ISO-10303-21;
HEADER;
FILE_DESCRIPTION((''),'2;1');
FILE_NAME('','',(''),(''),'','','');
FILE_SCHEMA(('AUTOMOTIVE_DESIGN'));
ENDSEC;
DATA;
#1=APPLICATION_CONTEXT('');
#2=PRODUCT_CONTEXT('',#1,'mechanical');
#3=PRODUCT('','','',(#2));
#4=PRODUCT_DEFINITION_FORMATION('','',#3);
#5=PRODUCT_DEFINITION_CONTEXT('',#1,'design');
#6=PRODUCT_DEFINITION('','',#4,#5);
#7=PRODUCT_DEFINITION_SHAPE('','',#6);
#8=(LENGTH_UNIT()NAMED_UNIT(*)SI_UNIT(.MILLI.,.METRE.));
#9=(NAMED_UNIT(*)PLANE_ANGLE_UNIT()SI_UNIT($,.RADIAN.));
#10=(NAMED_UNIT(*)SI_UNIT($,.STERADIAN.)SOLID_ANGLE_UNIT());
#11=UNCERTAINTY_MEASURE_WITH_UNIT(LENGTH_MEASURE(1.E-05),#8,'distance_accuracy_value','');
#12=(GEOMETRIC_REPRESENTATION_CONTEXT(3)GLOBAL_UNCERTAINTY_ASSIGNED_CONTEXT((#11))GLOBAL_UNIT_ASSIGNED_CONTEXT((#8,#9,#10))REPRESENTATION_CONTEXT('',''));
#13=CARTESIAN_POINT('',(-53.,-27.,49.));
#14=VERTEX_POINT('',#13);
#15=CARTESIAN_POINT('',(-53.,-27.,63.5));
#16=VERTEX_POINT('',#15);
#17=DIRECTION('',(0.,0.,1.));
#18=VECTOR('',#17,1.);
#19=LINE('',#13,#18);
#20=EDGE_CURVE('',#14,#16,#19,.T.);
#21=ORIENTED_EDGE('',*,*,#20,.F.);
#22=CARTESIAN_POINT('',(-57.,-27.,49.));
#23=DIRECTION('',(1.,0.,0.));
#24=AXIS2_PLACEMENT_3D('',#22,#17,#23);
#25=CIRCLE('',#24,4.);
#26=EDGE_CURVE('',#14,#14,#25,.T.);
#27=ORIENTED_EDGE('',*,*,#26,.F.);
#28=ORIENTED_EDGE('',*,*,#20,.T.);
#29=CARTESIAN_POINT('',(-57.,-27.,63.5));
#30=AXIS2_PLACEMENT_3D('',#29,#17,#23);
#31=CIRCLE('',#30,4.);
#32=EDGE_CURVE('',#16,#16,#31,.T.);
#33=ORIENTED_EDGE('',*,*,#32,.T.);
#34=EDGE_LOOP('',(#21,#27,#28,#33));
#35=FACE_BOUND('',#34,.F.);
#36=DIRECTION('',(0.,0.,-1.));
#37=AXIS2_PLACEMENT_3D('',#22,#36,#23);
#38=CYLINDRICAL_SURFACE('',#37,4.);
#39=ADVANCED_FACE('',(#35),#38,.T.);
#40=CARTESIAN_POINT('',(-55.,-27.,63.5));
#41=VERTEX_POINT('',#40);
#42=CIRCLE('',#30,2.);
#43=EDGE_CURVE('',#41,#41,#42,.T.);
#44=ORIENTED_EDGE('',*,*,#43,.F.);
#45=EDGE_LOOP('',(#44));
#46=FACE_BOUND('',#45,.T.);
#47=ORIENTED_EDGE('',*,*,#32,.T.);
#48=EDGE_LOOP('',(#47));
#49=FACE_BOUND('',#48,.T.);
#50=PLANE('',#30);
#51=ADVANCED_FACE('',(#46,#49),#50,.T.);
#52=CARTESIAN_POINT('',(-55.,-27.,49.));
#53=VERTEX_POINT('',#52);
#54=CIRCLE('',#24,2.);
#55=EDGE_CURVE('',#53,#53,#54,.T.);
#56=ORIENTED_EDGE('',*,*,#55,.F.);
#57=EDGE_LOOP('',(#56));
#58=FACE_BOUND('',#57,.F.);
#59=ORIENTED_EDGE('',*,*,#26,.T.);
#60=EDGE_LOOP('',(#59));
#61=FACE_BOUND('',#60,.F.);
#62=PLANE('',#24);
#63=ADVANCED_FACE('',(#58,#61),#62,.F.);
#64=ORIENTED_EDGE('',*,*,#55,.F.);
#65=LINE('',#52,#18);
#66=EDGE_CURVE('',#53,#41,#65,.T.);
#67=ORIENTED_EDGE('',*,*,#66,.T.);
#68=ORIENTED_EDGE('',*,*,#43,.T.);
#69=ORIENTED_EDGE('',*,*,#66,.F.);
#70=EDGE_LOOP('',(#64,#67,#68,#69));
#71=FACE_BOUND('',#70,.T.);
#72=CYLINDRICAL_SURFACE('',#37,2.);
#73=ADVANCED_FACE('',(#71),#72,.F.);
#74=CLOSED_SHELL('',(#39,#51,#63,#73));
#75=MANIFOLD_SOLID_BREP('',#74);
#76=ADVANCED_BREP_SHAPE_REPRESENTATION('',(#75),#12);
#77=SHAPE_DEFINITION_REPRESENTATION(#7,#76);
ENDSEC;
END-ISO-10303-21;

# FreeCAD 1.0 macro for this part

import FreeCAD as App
import Part
import Sketcher

V = App.Vector

doc = App.newDocument("Part")
body = doc.addObject("PartDesign::Body", "Body")

# Sketch on XY plane
sketch1 = body.newObject("Sketcher::SketchObject", "Sketch")
sketch1.AttachmentSupport = (doc.getObject("XY_Plane"), [""])
sketch1.MapMode = "FlatFace"
sketch1.addGeometry(Part.Circle(V(0, 0, 0), V(0, 0, 1), 2), False)
sketch1.addConstraint([
    Sketcher.Constraint("Coincident", 0, 3, -1, 1),
    Sketcher.Constraint("Diameter", 0, 4.0),
])
pad1 = body.newObject("PartDesign::Pad", "Pad")
pad1.Profile = sketch1
pad1.Length = 14.5
body2 = doc.addObject("PartDesign::Body", "Body001")

# Sketch on XY plane
sketch2 = body2.newObject("Sketcher::SketchObject", "Sketch001")
sketch2.AttachmentSupport = (doc.getObject("XY_Plane001"), [""])
sketch2.MapMode = "FlatFace"
sketch2.addGeometry(Part.Circle(V(0, 0, 0), V(0, 0, 1), 4), False)
sketch2.addConstraint([
    Sketcher.Constraint("Coincident", 0, 3, -1, 1),
    Sketcher.Constraint("Diameter", 0, 8.0),
])
pad2 = body2.newObject("PartDesign::Pad", "Pad001")
pad2.Profile = sketch2
pad2.Length = 14.5
doc.recompute()

boolean = body2.newObject("PartDesign::Boolean", "Boolean")
boolean.Type = "Cut"
boolean.addObjects([body])
body3 = doc.addObject("PartDesign::Body", "Body002")
doc.recompute()

body2.Placement = App.Placement(V(-57, -27, 49), App.Rotation(V(0, 0, 1), 0))
boolean2 = body3.newObject("PartDesign::Boolean", "Boolean001")
boolean2.Type = "Fuse"
boolean2.addObjects([body2])

doc.recompute()
